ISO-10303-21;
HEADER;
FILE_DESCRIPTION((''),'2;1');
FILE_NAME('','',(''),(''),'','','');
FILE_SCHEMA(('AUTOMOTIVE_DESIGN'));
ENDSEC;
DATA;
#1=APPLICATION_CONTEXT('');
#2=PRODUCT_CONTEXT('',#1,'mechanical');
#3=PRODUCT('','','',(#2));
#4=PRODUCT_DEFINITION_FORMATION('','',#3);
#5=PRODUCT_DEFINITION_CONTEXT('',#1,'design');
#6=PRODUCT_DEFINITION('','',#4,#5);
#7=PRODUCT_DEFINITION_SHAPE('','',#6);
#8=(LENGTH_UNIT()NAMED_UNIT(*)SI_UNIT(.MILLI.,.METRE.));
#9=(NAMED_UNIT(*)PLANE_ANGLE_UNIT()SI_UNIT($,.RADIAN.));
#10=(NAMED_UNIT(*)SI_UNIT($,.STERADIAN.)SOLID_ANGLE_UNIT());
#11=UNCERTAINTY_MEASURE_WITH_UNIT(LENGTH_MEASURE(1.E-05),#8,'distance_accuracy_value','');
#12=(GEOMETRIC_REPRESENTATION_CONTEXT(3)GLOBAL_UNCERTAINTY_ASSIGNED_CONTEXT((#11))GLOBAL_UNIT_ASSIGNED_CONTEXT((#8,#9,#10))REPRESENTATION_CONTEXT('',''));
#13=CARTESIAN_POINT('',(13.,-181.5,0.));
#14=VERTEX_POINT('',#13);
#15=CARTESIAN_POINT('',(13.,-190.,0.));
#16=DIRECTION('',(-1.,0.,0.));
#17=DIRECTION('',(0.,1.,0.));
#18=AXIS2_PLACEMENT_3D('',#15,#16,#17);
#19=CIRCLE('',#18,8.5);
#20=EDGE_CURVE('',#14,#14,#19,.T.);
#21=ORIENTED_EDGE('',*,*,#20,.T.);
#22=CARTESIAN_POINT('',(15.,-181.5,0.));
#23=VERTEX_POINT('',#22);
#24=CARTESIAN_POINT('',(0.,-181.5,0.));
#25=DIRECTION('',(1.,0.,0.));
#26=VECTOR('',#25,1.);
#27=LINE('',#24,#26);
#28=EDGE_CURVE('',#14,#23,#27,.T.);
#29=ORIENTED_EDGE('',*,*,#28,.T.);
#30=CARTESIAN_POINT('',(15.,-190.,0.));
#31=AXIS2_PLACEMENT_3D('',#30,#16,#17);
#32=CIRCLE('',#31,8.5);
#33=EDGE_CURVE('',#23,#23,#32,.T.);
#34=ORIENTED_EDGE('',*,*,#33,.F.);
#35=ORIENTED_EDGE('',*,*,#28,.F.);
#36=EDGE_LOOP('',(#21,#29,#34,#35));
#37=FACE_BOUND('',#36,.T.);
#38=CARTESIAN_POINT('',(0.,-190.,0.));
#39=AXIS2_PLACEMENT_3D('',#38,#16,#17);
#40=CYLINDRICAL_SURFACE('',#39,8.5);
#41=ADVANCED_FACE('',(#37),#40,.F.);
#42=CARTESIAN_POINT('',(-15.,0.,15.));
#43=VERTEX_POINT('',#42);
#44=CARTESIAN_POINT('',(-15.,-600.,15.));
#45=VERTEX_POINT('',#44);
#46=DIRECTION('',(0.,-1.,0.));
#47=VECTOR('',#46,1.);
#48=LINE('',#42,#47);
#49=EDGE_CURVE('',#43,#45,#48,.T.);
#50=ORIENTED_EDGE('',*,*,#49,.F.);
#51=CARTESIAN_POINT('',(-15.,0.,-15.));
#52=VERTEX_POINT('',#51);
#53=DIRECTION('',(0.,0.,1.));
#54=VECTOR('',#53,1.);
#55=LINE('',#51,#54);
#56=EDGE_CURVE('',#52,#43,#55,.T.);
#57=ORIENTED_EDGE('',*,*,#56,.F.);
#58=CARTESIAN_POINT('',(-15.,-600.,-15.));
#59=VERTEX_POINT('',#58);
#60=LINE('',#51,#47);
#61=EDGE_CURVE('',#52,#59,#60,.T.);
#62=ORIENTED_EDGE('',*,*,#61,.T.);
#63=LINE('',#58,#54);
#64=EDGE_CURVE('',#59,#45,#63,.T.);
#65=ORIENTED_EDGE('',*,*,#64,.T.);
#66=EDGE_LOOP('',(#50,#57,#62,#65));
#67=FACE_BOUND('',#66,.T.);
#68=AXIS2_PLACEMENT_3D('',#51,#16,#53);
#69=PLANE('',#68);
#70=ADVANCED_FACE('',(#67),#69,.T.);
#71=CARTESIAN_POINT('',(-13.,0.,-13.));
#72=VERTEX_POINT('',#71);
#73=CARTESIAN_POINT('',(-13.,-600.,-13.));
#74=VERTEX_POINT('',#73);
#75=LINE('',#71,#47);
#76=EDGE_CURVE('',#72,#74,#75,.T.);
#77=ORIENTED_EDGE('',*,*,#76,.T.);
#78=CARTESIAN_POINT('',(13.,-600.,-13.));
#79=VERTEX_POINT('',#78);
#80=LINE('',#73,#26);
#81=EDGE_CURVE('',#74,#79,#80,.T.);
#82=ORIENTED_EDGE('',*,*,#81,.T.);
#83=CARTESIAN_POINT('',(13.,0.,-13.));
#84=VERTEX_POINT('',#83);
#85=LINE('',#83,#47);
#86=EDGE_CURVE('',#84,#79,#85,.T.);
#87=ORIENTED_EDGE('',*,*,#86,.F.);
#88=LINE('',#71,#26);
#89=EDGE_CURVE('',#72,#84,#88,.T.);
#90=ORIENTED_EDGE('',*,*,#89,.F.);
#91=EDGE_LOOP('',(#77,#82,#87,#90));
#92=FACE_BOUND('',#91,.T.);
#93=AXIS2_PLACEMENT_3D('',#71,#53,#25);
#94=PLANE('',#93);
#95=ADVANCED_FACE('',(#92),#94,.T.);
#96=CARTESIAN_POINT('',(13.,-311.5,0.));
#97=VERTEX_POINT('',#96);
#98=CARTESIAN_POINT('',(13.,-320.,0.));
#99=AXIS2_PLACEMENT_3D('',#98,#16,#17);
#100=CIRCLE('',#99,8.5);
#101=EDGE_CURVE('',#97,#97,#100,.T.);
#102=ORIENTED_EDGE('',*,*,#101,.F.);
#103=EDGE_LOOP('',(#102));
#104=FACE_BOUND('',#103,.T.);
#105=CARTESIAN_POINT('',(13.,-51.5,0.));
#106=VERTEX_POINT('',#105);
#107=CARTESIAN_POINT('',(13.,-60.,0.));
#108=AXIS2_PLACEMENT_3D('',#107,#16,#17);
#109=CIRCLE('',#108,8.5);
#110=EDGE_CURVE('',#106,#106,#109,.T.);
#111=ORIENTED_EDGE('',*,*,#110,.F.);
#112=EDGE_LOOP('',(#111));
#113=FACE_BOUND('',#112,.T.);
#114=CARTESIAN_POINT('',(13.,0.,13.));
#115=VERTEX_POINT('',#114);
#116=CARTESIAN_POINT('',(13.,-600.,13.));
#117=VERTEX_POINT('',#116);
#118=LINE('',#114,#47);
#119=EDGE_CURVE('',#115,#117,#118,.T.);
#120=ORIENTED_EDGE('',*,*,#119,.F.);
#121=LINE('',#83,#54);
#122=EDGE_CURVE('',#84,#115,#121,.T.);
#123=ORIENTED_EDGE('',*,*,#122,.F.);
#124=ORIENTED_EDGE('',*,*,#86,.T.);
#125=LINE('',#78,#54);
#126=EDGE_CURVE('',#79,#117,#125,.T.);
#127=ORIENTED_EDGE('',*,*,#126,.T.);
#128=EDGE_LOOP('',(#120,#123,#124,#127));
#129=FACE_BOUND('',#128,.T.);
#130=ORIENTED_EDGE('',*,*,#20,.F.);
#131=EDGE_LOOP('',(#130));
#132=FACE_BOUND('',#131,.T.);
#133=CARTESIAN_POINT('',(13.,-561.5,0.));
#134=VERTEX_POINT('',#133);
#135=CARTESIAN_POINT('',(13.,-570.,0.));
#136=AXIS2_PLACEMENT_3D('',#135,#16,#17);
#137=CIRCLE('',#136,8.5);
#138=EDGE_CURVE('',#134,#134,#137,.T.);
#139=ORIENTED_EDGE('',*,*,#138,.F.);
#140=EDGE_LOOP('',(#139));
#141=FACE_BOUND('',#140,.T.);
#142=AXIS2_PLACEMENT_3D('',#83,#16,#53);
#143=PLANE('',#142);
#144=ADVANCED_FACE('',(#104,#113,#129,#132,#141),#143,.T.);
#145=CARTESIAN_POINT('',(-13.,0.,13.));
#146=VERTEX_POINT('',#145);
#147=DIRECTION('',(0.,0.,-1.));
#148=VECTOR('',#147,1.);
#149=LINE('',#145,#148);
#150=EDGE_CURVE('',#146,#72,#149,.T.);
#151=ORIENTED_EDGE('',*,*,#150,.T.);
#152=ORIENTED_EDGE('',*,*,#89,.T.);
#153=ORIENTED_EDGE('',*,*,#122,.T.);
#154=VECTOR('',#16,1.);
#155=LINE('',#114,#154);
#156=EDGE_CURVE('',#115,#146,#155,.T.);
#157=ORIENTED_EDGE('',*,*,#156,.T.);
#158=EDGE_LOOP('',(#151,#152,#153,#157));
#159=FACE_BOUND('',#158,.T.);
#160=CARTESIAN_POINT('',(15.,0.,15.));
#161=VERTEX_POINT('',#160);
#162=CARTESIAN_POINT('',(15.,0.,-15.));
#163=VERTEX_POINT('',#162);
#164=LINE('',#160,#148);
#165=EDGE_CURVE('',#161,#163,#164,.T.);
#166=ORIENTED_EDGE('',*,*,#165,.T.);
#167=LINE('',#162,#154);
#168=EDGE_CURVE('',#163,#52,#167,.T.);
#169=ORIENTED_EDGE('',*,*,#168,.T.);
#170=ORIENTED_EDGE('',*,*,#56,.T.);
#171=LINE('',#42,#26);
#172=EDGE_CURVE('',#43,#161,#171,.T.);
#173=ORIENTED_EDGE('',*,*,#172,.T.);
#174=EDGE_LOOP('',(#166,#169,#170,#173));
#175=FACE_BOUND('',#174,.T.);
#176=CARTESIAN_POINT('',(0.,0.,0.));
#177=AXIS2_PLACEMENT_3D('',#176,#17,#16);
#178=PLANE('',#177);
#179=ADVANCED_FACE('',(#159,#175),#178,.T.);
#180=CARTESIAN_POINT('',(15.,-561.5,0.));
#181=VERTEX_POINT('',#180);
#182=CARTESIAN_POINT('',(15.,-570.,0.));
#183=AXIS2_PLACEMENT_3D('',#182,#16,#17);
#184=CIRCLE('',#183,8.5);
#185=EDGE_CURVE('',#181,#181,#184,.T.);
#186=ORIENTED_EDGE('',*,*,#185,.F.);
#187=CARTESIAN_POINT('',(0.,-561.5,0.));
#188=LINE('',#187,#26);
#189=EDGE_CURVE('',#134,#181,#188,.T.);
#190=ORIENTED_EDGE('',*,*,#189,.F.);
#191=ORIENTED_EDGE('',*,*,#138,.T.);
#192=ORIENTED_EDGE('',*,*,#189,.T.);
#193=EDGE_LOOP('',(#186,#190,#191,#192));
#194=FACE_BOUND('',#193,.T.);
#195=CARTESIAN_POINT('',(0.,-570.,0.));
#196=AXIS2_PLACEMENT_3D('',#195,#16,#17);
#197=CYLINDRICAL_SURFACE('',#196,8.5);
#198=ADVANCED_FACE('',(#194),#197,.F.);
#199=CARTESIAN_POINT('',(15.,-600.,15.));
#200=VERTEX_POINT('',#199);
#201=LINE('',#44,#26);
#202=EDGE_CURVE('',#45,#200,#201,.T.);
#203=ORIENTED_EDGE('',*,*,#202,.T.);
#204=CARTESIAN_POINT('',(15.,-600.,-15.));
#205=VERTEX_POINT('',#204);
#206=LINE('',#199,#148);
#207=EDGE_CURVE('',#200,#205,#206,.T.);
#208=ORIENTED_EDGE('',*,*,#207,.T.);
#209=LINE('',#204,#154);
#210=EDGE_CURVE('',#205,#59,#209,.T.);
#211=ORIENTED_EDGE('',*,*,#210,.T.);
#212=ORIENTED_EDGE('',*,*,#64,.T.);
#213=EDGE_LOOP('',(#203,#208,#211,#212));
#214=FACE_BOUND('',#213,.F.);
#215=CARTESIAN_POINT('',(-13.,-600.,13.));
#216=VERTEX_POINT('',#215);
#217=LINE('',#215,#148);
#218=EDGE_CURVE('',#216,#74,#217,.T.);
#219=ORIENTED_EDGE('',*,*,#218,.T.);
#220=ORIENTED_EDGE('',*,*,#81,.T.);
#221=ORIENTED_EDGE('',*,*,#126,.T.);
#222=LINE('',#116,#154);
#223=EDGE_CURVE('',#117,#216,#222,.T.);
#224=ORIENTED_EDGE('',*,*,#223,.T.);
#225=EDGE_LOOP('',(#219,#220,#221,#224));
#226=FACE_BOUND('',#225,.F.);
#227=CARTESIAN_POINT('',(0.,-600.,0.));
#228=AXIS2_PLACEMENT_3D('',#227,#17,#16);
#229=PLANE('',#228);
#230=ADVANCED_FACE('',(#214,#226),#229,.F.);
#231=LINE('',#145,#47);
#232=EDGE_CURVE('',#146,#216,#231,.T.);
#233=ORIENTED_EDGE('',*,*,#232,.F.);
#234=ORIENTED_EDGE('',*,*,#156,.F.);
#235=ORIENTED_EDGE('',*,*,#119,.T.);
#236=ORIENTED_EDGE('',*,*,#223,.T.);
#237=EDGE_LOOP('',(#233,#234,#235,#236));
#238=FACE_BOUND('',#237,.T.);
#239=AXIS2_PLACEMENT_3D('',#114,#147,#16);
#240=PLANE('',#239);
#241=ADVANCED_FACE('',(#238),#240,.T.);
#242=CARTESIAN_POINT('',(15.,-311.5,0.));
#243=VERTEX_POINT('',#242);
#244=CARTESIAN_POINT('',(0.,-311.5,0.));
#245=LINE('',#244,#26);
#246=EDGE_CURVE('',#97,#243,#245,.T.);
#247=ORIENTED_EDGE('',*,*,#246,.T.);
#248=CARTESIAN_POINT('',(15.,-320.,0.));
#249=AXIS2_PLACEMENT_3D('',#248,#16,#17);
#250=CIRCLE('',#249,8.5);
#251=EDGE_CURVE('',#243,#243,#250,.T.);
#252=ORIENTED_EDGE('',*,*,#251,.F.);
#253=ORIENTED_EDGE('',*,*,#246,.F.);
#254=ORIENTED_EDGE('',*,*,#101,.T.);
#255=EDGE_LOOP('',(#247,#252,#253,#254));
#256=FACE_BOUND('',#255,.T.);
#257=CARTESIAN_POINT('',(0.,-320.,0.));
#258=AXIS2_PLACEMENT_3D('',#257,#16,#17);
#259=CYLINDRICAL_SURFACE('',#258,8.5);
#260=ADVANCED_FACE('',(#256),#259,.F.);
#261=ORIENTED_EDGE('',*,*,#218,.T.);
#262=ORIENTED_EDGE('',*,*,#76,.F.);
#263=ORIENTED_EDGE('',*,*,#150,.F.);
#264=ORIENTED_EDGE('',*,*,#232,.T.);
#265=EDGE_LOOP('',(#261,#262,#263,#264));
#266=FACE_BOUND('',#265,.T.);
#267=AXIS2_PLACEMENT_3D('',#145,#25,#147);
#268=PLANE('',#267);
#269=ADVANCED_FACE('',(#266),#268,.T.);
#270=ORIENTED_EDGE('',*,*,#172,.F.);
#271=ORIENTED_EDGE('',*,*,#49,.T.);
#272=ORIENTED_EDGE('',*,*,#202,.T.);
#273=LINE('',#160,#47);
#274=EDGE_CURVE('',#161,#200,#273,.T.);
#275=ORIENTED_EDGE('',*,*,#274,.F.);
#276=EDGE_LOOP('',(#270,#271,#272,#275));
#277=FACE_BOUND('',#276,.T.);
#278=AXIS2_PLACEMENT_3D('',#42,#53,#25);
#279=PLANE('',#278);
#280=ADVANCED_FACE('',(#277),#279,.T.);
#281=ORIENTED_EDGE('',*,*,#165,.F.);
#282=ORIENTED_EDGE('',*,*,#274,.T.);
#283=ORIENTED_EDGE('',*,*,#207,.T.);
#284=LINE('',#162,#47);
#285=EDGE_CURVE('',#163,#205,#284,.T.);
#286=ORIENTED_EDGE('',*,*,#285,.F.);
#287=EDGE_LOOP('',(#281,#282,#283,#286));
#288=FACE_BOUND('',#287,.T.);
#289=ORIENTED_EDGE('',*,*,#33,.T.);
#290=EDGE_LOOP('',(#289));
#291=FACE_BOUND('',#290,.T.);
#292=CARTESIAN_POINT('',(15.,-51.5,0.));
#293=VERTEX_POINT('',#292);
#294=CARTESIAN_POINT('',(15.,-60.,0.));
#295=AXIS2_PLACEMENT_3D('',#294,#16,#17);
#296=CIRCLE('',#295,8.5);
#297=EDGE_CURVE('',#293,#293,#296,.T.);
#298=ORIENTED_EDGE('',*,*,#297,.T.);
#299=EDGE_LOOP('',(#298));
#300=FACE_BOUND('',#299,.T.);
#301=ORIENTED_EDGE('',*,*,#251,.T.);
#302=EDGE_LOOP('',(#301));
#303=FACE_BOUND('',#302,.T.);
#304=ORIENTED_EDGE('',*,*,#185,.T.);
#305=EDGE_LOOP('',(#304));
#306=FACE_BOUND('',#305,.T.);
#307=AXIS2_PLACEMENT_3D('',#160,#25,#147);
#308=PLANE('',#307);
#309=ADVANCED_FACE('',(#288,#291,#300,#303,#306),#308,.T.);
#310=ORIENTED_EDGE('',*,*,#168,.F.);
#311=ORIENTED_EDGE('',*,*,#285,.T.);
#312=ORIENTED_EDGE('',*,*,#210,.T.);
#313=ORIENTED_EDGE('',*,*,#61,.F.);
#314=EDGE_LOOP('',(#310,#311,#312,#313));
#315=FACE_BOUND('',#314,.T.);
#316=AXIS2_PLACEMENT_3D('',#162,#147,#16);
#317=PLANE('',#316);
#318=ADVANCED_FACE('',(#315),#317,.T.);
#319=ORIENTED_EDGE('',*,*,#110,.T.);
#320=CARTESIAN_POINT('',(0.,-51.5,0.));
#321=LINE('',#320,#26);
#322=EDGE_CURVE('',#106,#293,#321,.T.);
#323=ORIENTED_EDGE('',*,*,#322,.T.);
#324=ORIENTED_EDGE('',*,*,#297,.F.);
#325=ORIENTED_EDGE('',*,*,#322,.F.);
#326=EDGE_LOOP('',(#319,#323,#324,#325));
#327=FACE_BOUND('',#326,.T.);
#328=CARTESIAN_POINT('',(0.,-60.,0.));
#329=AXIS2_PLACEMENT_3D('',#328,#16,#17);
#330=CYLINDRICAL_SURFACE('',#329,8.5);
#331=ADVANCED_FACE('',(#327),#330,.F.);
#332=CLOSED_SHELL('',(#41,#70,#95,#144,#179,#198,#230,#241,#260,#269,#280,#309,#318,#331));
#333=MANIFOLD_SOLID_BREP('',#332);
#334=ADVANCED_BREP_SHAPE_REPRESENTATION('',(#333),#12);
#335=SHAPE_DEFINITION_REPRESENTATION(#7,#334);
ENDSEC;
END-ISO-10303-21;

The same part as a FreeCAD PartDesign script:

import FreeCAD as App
import Part
import Sketcher
from FreeCAD import Vector
Q = App.Units.Quantity


def add_polygon(sketch, points):
    """Adds a closed chain of lines whose ends are joined by coincident constraints."""
    first, n = sketch.GeometryCount, len(points)
    for a, b in zip(points, points[1:] + points[:1]):
        sketch.addGeometry(Part.LineSegment(App.Vector(*a, 0), App.Vector(*b, 0)), False)
    for i in range(n):
        sketch.addConstraint(Sketcher.Constraint("Coincident", first + i, 2, first + (i + 1) % n, 1))

doc = App.newDocument("Part")
body = doc.addObject("PartDesign::Body", "Body")

# Sketch on XZ plane
sketch1 = body.newObject("Sketcher::SketchObject", "Sketch")
sketch1.AttachmentSupport = (doc.getObject("XZ_Plane"), [""])
sketch1.MapMode = "FlatFace"
add_polygon(sketch1, [(-15, -15), (-15, 15), (15, 15), (15, -15)])  # lines 0-3
add_polygon(sketch1, [(13, -13), (13, 13), (-13, 13), (-13, -13)])  # lines 4-7
sketch1.addConstraint([
    Sketcher.Constraint("Vertical", 0),
    Sketcher.Constraint("Horizontal", 1),
    Sketcher.Constraint("Vertical", 2),
    Sketcher.Constraint("Horizontal", 3),
    Sketcher.Constraint("Vertical", 4),
    Sketcher.Constraint("Horizontal", 5),
    Sketcher.Constraint("Vertical", 6),
    Sketcher.Constraint("Horizontal", 7),
    Sketcher.Constraint("Symmetric", 0, 2, 2, 2, -1, 1),
    Sketcher.Constraint("Symmetric", 4, 2, 6, 2, -1, 1),
    Sketcher.Constraint("Equal", 3, 0),
    Sketcher.Constraint("Equal", 7, 4),
    Sketcher.Constraint("DistanceX", 1, 1, 1, 2, Q("30 mm")),
    Sketcher.Constraint("DistanceX", 4, 2, 1, 2, Q("2 mm")),
])
pad1 = body.newObject("PartDesign::Pad", "Pad")
pad1.Profile = sketch1
pad1.Length = 600

# Sketch on YZ plane
sketch2 = body.newObject("Sketcher::SketchObject", "Sketch001")
sketch2.AttachmentSupport = (doc.getObject("YZ_Plane"), [""])
sketch2.MapMode = "FlatFace"
sketch2.addGeometry([
    Part.Circle(Vector(-60, 0, 0), Vector(0, 0, 1), 8),
    Part.Circle(Vector(-190, 0, 0), Vector(0, 0, 1), 8),
    Part.Circle(Vector(-320, 0, 0), Vector(0, 0, 1), 8),
    Part.Circle(Vector(-570, 0, 0), Vector(0, 0, 1), 8),
], False)
sketch2.addConstraint([
    Sketcher.Constraint("Equal", 0, 1),
    Sketcher.Constraint("Equal", 1, 2),
    Sketcher.Constraint("Equal", 2, 3),
    Sketcher.Constraint("PointOnObject", 0, 3, -1),
    Sketcher.Constraint("PointOnObject", 1, 3, -1),
    Sketcher.Constraint("PointOnObject", 2, 3, -1),
    Sketcher.Constraint("PointOnObject", 3, 3, -1),
    Sketcher.Constraint("Diameter", 0, Q("17 mm")),
    Sketcher.Constraint("DistanceX", 0, 3, -1, 1, Q("60 mm")),
    Sketcher.Constraint("DistanceX", 1, 3, -1, 1, Q("190 mm")),
    Sketcher.Constraint("DistanceX", 2, 3, -1, 1, Q("320 mm")),
    Sketcher.Constraint("DistanceX", 3, 3, -1, 1, Q("570 mm")),
])
pocket1 = body.newObject("PartDesign::Pocket", "Pocket")
pocket1.Profile = sketch2
pocket1.Type = "ThroughAll"
pocket1.Reversed = True

doc.recompute()
